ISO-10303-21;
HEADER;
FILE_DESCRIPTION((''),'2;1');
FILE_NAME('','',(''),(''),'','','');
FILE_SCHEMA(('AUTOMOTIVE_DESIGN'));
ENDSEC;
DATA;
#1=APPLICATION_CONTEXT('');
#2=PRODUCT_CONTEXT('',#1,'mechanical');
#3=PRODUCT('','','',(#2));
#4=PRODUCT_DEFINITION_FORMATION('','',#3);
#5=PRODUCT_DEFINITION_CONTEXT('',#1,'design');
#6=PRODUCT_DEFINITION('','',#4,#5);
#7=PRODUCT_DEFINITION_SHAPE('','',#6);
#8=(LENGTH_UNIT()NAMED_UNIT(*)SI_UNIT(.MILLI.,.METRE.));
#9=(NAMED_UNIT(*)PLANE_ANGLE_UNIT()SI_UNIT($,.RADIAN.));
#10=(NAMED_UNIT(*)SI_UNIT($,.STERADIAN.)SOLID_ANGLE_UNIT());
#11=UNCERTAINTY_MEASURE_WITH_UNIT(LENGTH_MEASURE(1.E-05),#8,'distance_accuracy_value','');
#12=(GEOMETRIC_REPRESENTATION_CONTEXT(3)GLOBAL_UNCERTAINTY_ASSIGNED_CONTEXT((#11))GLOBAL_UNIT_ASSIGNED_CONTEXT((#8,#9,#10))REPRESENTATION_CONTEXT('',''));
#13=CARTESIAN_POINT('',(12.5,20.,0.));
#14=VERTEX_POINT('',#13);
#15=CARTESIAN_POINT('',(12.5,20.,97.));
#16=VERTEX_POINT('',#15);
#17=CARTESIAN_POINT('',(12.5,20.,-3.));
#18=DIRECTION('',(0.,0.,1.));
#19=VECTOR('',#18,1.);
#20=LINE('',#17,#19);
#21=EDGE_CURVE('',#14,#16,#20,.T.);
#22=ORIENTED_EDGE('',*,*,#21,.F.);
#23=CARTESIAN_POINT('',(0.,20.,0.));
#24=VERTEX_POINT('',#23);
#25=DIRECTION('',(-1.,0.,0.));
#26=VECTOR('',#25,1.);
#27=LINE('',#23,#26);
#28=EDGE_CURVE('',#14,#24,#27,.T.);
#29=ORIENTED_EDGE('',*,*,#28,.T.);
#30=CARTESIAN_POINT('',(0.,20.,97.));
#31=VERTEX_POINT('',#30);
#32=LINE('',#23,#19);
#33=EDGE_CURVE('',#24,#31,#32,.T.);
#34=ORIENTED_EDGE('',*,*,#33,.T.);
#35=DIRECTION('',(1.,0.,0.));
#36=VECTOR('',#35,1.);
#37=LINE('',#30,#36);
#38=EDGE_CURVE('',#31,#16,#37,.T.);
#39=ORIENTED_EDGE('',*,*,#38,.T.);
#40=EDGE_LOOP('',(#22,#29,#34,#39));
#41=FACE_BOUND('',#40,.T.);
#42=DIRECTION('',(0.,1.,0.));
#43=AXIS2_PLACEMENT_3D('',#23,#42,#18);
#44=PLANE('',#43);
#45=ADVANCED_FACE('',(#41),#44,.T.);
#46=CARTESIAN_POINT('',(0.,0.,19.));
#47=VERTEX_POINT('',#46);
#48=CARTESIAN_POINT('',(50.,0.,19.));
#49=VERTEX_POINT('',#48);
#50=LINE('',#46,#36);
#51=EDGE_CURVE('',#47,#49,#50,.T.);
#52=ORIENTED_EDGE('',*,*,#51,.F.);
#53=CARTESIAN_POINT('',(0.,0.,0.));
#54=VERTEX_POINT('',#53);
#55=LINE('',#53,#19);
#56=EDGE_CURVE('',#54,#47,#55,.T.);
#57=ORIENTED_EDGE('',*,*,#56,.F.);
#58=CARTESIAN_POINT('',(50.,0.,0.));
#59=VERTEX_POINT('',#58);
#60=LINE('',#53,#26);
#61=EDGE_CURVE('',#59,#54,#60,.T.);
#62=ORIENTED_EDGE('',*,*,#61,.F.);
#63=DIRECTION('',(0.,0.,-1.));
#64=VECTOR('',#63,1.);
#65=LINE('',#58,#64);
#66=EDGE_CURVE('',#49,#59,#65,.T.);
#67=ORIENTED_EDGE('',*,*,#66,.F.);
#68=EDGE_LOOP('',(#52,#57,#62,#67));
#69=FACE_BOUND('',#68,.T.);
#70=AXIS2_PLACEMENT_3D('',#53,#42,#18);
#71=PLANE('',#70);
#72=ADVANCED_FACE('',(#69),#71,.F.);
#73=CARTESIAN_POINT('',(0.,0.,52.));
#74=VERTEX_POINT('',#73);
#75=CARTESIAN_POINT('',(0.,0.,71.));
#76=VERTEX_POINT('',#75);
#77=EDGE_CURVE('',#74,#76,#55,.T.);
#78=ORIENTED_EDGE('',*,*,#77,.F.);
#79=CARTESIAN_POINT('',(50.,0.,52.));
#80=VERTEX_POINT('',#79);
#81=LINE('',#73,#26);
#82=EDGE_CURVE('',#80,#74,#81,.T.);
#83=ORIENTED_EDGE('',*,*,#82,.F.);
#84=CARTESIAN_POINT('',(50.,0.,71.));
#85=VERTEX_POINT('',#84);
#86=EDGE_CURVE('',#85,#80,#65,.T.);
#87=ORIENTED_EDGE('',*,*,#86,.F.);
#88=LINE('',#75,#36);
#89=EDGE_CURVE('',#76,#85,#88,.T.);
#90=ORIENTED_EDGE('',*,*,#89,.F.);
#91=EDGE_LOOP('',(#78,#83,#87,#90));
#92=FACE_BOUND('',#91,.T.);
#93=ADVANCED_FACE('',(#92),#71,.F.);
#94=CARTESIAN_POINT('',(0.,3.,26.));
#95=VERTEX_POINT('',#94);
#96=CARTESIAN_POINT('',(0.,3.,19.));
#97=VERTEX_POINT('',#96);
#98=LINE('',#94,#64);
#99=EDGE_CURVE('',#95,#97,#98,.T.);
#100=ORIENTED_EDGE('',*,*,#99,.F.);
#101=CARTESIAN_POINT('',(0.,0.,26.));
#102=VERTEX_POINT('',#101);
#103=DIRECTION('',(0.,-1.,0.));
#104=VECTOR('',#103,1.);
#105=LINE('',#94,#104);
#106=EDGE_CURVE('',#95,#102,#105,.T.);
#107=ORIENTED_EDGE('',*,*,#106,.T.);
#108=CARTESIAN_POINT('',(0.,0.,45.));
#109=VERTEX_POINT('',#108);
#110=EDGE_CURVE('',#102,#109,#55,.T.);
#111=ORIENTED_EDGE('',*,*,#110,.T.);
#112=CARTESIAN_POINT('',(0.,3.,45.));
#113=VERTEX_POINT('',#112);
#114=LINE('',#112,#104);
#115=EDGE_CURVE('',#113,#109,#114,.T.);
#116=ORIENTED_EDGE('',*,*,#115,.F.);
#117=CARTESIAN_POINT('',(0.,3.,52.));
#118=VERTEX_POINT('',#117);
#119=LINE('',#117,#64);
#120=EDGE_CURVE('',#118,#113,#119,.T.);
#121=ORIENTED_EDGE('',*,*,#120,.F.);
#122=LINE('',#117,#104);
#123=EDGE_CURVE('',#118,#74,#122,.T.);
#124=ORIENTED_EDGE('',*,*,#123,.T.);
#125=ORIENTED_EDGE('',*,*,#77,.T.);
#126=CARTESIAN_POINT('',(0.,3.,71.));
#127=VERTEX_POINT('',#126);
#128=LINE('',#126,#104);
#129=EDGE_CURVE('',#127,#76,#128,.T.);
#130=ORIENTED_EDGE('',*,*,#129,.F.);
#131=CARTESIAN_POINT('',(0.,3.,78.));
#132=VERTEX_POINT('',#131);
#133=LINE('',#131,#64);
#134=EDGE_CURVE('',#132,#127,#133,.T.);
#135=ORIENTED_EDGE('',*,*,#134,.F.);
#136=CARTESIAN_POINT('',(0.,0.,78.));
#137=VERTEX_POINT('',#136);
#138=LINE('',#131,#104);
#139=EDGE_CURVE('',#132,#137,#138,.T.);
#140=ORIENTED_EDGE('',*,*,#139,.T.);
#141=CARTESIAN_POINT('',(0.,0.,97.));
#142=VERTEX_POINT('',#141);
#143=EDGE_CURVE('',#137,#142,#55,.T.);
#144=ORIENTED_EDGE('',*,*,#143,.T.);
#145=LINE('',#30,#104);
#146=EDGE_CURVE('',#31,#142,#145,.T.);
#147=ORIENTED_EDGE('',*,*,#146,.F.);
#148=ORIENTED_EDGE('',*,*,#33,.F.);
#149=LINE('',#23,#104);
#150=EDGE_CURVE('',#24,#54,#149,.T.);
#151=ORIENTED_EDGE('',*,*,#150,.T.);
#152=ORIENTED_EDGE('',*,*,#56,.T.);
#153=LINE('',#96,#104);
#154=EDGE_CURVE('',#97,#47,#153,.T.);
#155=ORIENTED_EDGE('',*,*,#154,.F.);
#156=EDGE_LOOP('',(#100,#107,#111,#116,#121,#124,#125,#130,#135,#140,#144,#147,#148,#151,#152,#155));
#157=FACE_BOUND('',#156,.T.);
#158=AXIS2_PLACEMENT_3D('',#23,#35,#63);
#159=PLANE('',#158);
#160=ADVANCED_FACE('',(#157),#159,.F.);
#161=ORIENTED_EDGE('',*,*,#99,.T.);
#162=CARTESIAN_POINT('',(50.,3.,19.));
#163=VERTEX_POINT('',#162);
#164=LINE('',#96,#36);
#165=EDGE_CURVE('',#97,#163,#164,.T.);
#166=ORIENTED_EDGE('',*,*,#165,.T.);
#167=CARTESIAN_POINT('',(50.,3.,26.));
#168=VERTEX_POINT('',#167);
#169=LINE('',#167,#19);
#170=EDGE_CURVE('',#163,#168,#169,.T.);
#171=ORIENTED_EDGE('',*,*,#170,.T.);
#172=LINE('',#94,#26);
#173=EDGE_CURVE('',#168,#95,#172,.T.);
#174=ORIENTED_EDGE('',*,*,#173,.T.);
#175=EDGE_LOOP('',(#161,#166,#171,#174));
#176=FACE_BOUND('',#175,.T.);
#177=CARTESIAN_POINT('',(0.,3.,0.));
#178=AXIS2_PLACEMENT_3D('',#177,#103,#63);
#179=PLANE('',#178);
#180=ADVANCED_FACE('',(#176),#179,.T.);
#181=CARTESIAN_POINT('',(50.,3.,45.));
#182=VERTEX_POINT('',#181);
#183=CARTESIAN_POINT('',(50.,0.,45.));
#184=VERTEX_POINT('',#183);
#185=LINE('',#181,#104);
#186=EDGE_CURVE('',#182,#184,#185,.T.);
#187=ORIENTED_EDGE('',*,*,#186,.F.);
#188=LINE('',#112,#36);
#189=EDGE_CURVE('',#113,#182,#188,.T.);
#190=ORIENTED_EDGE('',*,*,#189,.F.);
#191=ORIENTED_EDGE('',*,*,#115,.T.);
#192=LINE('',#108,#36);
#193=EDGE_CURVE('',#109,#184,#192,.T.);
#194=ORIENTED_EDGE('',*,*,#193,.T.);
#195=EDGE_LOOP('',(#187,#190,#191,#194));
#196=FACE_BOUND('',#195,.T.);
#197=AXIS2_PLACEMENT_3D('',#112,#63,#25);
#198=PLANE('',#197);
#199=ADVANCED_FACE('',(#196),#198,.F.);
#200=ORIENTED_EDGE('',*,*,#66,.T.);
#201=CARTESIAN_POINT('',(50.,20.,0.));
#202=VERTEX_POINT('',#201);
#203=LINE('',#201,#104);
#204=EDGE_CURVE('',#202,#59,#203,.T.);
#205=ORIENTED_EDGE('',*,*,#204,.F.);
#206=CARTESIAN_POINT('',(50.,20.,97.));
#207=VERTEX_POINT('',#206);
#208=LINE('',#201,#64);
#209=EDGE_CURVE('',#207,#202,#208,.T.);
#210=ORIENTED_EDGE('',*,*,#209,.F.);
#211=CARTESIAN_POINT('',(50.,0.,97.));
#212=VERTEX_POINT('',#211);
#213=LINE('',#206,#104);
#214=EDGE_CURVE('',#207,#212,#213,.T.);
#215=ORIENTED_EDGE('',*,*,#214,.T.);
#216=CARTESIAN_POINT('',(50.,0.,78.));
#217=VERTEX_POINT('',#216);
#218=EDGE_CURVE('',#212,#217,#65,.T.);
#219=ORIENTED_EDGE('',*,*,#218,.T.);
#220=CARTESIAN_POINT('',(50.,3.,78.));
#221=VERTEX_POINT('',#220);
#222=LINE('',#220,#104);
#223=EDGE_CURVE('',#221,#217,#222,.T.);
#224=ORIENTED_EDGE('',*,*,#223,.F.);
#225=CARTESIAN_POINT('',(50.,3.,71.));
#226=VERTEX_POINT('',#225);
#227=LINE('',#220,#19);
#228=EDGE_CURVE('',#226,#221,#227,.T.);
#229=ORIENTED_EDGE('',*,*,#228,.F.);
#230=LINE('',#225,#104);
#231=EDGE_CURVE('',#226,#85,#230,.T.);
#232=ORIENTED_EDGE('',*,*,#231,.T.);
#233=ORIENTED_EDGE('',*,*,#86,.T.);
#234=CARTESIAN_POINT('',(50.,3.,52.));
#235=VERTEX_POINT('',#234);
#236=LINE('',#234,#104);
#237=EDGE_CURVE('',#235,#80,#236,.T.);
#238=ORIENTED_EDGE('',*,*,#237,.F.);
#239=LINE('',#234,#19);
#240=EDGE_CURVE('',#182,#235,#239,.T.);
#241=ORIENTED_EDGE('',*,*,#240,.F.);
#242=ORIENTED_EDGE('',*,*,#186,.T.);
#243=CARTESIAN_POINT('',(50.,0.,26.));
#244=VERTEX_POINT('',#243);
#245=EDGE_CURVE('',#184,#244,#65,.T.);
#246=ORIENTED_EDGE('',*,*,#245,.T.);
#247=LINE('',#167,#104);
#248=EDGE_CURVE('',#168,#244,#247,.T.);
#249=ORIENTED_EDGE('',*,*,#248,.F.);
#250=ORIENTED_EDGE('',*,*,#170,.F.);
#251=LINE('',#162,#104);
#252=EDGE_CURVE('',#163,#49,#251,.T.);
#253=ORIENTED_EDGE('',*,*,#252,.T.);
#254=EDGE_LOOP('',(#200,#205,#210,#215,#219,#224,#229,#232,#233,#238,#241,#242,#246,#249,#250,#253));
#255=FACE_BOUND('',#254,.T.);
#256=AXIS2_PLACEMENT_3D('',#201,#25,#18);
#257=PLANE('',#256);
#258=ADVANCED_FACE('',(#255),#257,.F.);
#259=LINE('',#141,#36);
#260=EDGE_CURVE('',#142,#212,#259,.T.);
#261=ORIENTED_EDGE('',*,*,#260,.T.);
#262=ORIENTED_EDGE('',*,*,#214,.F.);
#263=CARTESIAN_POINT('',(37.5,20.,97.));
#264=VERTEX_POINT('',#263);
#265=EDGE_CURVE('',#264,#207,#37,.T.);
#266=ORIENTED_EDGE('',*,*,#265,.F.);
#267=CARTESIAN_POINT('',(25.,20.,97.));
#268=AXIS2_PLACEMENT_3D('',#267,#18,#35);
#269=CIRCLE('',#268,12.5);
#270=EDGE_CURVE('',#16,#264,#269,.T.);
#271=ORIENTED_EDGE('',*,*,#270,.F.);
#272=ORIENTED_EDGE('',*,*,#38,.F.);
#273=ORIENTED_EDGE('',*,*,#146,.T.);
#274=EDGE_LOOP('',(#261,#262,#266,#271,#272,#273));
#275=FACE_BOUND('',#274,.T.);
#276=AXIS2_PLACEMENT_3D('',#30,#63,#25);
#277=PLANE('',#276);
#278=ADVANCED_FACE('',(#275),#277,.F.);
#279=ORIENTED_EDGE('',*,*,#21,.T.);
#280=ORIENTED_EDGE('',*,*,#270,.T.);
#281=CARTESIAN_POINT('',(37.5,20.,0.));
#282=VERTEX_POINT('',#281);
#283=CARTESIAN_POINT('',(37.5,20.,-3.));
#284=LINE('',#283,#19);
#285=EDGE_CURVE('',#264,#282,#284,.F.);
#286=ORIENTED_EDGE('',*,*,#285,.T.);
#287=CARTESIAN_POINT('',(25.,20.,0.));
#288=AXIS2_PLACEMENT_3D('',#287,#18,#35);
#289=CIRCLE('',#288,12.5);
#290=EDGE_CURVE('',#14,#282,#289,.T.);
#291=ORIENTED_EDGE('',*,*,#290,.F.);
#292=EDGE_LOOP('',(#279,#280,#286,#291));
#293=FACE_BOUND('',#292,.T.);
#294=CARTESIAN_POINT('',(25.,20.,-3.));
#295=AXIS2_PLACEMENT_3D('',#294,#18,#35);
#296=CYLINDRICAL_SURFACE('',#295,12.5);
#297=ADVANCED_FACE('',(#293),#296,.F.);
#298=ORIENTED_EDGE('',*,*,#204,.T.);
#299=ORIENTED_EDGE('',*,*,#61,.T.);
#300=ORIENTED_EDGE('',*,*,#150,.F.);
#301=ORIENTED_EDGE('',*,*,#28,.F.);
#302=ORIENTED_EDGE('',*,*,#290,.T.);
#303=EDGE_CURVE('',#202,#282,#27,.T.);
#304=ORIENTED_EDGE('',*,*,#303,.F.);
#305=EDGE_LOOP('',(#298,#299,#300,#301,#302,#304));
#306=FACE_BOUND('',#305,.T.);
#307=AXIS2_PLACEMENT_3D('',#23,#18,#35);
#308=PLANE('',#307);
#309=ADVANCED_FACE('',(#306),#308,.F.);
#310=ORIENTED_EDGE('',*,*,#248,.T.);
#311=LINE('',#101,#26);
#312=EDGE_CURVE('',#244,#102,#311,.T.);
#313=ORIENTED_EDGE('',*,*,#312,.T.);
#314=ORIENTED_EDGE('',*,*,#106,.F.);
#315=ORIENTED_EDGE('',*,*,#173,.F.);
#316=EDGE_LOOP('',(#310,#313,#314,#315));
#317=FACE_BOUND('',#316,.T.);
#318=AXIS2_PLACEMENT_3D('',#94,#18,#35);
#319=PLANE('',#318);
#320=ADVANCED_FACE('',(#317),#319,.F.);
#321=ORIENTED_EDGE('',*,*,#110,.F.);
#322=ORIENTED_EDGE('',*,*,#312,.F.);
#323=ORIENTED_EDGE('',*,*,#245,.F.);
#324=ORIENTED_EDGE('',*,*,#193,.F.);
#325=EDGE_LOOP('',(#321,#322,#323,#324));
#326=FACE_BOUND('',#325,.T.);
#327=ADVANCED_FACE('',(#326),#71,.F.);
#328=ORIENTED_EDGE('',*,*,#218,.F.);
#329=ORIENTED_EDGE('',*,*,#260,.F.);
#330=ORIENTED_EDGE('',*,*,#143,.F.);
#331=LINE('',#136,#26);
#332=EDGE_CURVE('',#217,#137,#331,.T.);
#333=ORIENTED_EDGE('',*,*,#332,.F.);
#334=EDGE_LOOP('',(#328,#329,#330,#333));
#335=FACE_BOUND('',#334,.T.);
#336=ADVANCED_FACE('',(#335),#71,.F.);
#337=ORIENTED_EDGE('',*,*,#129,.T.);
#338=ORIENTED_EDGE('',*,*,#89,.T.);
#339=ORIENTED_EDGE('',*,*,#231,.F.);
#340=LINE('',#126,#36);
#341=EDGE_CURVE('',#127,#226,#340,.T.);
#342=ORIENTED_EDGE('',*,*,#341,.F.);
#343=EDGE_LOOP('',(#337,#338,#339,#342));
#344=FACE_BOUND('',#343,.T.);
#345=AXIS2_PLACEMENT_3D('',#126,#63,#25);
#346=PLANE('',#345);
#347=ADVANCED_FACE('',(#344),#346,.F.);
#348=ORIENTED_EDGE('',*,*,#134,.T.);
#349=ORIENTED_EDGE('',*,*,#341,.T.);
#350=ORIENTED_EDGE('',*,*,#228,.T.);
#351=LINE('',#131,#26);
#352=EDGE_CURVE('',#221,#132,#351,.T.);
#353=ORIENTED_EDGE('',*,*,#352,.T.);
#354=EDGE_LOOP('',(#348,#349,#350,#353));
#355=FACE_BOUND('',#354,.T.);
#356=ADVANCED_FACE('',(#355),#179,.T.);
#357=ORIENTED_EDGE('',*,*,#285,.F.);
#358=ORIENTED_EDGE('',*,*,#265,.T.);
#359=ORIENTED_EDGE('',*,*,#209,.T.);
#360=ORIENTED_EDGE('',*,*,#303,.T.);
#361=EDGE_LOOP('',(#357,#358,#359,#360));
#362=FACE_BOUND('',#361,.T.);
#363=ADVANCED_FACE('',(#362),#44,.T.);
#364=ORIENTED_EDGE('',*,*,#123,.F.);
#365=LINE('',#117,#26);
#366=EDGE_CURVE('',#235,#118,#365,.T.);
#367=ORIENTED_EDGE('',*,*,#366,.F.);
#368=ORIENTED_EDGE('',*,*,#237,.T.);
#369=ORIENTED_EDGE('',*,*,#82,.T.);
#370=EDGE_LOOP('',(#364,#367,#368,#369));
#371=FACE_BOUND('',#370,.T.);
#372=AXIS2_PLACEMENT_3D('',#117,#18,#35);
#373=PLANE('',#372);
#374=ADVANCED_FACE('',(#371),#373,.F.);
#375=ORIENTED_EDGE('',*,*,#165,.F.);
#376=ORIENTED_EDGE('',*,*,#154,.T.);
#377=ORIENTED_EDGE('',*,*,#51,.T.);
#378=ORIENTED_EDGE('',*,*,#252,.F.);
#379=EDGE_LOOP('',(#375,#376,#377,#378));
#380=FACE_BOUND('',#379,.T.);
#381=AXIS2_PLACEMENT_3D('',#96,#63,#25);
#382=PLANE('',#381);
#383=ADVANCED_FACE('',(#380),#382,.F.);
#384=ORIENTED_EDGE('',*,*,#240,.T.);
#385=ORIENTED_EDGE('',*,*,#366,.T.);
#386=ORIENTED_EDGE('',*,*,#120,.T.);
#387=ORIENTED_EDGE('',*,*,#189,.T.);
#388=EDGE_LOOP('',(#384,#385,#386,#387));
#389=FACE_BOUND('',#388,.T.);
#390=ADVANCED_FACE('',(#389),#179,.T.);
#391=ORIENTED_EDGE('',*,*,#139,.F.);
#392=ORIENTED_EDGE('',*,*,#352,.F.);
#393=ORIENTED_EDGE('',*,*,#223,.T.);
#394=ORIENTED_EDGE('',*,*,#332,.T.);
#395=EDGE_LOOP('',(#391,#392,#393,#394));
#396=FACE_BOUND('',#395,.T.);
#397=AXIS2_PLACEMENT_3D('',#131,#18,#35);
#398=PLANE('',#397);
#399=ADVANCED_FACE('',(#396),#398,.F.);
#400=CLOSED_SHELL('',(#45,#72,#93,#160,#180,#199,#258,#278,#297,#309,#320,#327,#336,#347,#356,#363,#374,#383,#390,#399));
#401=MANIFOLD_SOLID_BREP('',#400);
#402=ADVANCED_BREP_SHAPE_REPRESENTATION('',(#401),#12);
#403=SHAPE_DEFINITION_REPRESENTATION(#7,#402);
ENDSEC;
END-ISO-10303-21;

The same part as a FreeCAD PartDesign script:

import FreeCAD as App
import Part
import Sketcher
from FreeCAD import Vector

doc = App.newDocument("Part")
body = doc.addObject("PartDesign::Body", "Body")

# Sketch on XZ plane
sketch1 = body.newObject("Sketcher::SketchObject", "Sketch")
sketch1.AttachmentSupport = (doc.getObject("XZ_Plane"), [""])
sketch1.MapMode = "FlatFace"
sketch1.addGeometry([
    Part.LineSegment(Vector(0, 0, 0), Vector(0, 97, 0)),
    Part.LineSegment(Vector(0, 97, 0), Vector(50, 97, 0)),
    Part.LineSegment(Vector(50, 97, 0), Vector(50, 0, 0)),
    Part.LineSegment(Vector(50, 0, 0), Vector(0, 0, 0)),
], False)
sketch1.addConstraint([
    Sketcher.Constraint("Coincident", 0, 2, 1, 1),
    Sketcher.Constraint("Coincident", 1, 2, 2, 1),
    Sketcher.Constraint("Coincident", 2, 2, 3, 1),
    Sketcher.Constraint("Coincident", 3, 2, 0, 1),
    Sketcher.Constraint("Vertical", 0),
    Sketcher.Constraint("Horizontal", 1),
    Sketcher.Constraint("Vertical", 2),
    Sketcher.Constraint("Horizontal", 3),
    Sketcher.Constraint("Coincident", 3, 2, -1, 1),
    Sketcher.Constraint("DistanceX", 1, 1, 1, 2, 50.0),
    Sketcher.Constraint("DistanceY", 0, 1, 0, 2, 97.0),
])
pad1 = body.newObject("PartDesign::Pad", "Pad")
pad1.Profile = sketch1
pad1.Length = 20
pad1.Reversed = True

# Sketch on XY plane
sketch2 = body.newObject("Sketcher::SketchObject", "Sketch001")
sketch2.AttachmentSupport = (doc.getObject("XY_Plane"), [""])
sketch2.MapMode = "FlatFace"
sketch2.AttachmentOffset = App.Placement(Vector(0, 0, 97), App.Rotation())
sketch2.addGeometry(Part.Circle(Vector(25, 20, 0), Vector(0, 0, 1), 12), False)
sketch2.addConstraint([
    Sketcher.Constraint("Diameter", 0, 25.0),
    Sketcher.Constraint("DistanceX", -1, 1, 0, 3, 25.0),
    Sketcher.Constraint("DistanceY", -1, 1, 0, 3, 20.0),
])
pocket1 = body.newObject("PartDesign::Pocket", "Pocket")
pocket1.Profile = sketch2
pocket1.Length = 100

# Sketch on XZ plane
sketch3 = body.newObject("Sketcher::SketchObject", "Sketch002")
sketch3.AttachmentSupport = (doc.getObject("XZ_Plane"), [""])
sketch3.MapMode = "FlatFace"
sketch3.addGeometry([
    Part.LineSegment(Vector(0, 78, 0), Vector(0, 71, 0)),  # 0
    Part.LineSegment(Vector(0, 71, 0), Vector(50, 71, 0)),  # 1
    Part.LineSegment(Vector(50, 71, 0), Vector(50, 78, 0)),  # 2
    Part.LineSegment(Vector(50, 78, 0), Vector(0, 78, 0)),  # 3
    Part.LineSegment(Vector(0, 52, 0), Vector(0, 45, 0)),  # 4
    Part.LineSegment(Vector(0, 45, 0), Vector(50, 45, 0)),  # 5
    Part.LineSegment(Vector(50, 45, 0), Vector(50, 52, 0)),  # 6
    Part.LineSegment(Vector(50, 52, 0), Vector(0, 52, 0)),  # 7
    Part.LineSegment(Vector(0, 26, 0), Vector(0, 19, 0)),  # 8
    Part.LineSegment(Vector(0, 19, 0), Vector(50, 19, 0)),  # 9
    Part.LineSegment(Vector(50, 19, 0), Vector(50, 26, 0)),  # 10
    Part.LineSegment(Vector(50, 26, 0), Vector(0, 26, 0)),  # 11
], False)
sketch3.addConstraint([
    Sketcher.Constraint("Coincident", 0, 2, 1, 1),
    Sketcher.Constraint("Coincident", 1, 2, 2, 1),
    Sketcher.Constraint("Coincident", 2, 2, 3, 1),
    Sketcher.Constraint("Coincident", 3, 2, 0, 1),
    Sketcher.Constraint("Coincident", 4, 2, 5, 1),
    Sketcher.Constraint("Coincident", 5, 2, 6, 1),
    Sketcher.Constraint("Coincident", 6, 2, 7, 1),
    Sketcher.Constraint("Coincident", 7, 2, 4, 1),
    Sketcher.Constraint("Coincident", 8, 2, 9, 1),
    Sketcher.Constraint("Coincident", 9, 2, 10, 1),
    Sketcher.Constraint("Coincident", 10, 2, 11, 1),
    Sketcher.Constraint("Coincident", 11, 2, 8, 1),
    Sketcher.Constraint("Vertical", 0),
    Sketcher.Constraint("Horizontal", 1),
    Sketcher.Constraint("Vertical", 2),
    Sketcher.Constraint("Horizontal", 3),
    Sketcher.Constraint("Vertical", 4),
    Sketcher.Constraint("Horizontal", 5),
    Sketcher.Constraint("Vertical", 6),
    Sketcher.Constraint("Horizontal", 7),
    Sketcher.Constraint("Vertical", 8),
    Sketcher.Constraint("Horizontal", 9),
    Sketcher.Constraint("Vertical", 10),
    Sketcher.Constraint("Horizontal", 11),
    Sketcher.Constraint("PointOnObject", 0, 2, -2),
    Sketcher.Constraint("PointOnObject", 4, 2, -2),
    Sketcher.Constraint("PointOnObject", 8, 2, -2),
    Sketcher.Constraint("Vertical", 2, 2, 5, 2),
    Sketcher.Constraint("Vertical", 6, 2, 9, 2),
    Sketcher.Constraint("Equal", 2, 4),
    Sketcher.Constraint("Equal", 6, 8),
    Sketcher.Constraint("DistanceX", 1, 1, 1, 2, 50.0),
    Sketcher.Constraint("DistanceY", 0, 2, 0, 1, 7.0),
    Sketcher.Constraint("DistanceY", -1, 1, 0, 2, 71.0),
    Sketcher.Constraint("DistanceY", -1, 1, 4, 2, 45.0),
    Sketcher.Constraint("DistanceY", -1, 1, 8, 2, 19.0),
])
pocket2 = body.newObject("PartDesign::Pocket", "Pocket001")
pocket2.Profile = sketch3
pocket2.Length = 3

doc.recompute()
